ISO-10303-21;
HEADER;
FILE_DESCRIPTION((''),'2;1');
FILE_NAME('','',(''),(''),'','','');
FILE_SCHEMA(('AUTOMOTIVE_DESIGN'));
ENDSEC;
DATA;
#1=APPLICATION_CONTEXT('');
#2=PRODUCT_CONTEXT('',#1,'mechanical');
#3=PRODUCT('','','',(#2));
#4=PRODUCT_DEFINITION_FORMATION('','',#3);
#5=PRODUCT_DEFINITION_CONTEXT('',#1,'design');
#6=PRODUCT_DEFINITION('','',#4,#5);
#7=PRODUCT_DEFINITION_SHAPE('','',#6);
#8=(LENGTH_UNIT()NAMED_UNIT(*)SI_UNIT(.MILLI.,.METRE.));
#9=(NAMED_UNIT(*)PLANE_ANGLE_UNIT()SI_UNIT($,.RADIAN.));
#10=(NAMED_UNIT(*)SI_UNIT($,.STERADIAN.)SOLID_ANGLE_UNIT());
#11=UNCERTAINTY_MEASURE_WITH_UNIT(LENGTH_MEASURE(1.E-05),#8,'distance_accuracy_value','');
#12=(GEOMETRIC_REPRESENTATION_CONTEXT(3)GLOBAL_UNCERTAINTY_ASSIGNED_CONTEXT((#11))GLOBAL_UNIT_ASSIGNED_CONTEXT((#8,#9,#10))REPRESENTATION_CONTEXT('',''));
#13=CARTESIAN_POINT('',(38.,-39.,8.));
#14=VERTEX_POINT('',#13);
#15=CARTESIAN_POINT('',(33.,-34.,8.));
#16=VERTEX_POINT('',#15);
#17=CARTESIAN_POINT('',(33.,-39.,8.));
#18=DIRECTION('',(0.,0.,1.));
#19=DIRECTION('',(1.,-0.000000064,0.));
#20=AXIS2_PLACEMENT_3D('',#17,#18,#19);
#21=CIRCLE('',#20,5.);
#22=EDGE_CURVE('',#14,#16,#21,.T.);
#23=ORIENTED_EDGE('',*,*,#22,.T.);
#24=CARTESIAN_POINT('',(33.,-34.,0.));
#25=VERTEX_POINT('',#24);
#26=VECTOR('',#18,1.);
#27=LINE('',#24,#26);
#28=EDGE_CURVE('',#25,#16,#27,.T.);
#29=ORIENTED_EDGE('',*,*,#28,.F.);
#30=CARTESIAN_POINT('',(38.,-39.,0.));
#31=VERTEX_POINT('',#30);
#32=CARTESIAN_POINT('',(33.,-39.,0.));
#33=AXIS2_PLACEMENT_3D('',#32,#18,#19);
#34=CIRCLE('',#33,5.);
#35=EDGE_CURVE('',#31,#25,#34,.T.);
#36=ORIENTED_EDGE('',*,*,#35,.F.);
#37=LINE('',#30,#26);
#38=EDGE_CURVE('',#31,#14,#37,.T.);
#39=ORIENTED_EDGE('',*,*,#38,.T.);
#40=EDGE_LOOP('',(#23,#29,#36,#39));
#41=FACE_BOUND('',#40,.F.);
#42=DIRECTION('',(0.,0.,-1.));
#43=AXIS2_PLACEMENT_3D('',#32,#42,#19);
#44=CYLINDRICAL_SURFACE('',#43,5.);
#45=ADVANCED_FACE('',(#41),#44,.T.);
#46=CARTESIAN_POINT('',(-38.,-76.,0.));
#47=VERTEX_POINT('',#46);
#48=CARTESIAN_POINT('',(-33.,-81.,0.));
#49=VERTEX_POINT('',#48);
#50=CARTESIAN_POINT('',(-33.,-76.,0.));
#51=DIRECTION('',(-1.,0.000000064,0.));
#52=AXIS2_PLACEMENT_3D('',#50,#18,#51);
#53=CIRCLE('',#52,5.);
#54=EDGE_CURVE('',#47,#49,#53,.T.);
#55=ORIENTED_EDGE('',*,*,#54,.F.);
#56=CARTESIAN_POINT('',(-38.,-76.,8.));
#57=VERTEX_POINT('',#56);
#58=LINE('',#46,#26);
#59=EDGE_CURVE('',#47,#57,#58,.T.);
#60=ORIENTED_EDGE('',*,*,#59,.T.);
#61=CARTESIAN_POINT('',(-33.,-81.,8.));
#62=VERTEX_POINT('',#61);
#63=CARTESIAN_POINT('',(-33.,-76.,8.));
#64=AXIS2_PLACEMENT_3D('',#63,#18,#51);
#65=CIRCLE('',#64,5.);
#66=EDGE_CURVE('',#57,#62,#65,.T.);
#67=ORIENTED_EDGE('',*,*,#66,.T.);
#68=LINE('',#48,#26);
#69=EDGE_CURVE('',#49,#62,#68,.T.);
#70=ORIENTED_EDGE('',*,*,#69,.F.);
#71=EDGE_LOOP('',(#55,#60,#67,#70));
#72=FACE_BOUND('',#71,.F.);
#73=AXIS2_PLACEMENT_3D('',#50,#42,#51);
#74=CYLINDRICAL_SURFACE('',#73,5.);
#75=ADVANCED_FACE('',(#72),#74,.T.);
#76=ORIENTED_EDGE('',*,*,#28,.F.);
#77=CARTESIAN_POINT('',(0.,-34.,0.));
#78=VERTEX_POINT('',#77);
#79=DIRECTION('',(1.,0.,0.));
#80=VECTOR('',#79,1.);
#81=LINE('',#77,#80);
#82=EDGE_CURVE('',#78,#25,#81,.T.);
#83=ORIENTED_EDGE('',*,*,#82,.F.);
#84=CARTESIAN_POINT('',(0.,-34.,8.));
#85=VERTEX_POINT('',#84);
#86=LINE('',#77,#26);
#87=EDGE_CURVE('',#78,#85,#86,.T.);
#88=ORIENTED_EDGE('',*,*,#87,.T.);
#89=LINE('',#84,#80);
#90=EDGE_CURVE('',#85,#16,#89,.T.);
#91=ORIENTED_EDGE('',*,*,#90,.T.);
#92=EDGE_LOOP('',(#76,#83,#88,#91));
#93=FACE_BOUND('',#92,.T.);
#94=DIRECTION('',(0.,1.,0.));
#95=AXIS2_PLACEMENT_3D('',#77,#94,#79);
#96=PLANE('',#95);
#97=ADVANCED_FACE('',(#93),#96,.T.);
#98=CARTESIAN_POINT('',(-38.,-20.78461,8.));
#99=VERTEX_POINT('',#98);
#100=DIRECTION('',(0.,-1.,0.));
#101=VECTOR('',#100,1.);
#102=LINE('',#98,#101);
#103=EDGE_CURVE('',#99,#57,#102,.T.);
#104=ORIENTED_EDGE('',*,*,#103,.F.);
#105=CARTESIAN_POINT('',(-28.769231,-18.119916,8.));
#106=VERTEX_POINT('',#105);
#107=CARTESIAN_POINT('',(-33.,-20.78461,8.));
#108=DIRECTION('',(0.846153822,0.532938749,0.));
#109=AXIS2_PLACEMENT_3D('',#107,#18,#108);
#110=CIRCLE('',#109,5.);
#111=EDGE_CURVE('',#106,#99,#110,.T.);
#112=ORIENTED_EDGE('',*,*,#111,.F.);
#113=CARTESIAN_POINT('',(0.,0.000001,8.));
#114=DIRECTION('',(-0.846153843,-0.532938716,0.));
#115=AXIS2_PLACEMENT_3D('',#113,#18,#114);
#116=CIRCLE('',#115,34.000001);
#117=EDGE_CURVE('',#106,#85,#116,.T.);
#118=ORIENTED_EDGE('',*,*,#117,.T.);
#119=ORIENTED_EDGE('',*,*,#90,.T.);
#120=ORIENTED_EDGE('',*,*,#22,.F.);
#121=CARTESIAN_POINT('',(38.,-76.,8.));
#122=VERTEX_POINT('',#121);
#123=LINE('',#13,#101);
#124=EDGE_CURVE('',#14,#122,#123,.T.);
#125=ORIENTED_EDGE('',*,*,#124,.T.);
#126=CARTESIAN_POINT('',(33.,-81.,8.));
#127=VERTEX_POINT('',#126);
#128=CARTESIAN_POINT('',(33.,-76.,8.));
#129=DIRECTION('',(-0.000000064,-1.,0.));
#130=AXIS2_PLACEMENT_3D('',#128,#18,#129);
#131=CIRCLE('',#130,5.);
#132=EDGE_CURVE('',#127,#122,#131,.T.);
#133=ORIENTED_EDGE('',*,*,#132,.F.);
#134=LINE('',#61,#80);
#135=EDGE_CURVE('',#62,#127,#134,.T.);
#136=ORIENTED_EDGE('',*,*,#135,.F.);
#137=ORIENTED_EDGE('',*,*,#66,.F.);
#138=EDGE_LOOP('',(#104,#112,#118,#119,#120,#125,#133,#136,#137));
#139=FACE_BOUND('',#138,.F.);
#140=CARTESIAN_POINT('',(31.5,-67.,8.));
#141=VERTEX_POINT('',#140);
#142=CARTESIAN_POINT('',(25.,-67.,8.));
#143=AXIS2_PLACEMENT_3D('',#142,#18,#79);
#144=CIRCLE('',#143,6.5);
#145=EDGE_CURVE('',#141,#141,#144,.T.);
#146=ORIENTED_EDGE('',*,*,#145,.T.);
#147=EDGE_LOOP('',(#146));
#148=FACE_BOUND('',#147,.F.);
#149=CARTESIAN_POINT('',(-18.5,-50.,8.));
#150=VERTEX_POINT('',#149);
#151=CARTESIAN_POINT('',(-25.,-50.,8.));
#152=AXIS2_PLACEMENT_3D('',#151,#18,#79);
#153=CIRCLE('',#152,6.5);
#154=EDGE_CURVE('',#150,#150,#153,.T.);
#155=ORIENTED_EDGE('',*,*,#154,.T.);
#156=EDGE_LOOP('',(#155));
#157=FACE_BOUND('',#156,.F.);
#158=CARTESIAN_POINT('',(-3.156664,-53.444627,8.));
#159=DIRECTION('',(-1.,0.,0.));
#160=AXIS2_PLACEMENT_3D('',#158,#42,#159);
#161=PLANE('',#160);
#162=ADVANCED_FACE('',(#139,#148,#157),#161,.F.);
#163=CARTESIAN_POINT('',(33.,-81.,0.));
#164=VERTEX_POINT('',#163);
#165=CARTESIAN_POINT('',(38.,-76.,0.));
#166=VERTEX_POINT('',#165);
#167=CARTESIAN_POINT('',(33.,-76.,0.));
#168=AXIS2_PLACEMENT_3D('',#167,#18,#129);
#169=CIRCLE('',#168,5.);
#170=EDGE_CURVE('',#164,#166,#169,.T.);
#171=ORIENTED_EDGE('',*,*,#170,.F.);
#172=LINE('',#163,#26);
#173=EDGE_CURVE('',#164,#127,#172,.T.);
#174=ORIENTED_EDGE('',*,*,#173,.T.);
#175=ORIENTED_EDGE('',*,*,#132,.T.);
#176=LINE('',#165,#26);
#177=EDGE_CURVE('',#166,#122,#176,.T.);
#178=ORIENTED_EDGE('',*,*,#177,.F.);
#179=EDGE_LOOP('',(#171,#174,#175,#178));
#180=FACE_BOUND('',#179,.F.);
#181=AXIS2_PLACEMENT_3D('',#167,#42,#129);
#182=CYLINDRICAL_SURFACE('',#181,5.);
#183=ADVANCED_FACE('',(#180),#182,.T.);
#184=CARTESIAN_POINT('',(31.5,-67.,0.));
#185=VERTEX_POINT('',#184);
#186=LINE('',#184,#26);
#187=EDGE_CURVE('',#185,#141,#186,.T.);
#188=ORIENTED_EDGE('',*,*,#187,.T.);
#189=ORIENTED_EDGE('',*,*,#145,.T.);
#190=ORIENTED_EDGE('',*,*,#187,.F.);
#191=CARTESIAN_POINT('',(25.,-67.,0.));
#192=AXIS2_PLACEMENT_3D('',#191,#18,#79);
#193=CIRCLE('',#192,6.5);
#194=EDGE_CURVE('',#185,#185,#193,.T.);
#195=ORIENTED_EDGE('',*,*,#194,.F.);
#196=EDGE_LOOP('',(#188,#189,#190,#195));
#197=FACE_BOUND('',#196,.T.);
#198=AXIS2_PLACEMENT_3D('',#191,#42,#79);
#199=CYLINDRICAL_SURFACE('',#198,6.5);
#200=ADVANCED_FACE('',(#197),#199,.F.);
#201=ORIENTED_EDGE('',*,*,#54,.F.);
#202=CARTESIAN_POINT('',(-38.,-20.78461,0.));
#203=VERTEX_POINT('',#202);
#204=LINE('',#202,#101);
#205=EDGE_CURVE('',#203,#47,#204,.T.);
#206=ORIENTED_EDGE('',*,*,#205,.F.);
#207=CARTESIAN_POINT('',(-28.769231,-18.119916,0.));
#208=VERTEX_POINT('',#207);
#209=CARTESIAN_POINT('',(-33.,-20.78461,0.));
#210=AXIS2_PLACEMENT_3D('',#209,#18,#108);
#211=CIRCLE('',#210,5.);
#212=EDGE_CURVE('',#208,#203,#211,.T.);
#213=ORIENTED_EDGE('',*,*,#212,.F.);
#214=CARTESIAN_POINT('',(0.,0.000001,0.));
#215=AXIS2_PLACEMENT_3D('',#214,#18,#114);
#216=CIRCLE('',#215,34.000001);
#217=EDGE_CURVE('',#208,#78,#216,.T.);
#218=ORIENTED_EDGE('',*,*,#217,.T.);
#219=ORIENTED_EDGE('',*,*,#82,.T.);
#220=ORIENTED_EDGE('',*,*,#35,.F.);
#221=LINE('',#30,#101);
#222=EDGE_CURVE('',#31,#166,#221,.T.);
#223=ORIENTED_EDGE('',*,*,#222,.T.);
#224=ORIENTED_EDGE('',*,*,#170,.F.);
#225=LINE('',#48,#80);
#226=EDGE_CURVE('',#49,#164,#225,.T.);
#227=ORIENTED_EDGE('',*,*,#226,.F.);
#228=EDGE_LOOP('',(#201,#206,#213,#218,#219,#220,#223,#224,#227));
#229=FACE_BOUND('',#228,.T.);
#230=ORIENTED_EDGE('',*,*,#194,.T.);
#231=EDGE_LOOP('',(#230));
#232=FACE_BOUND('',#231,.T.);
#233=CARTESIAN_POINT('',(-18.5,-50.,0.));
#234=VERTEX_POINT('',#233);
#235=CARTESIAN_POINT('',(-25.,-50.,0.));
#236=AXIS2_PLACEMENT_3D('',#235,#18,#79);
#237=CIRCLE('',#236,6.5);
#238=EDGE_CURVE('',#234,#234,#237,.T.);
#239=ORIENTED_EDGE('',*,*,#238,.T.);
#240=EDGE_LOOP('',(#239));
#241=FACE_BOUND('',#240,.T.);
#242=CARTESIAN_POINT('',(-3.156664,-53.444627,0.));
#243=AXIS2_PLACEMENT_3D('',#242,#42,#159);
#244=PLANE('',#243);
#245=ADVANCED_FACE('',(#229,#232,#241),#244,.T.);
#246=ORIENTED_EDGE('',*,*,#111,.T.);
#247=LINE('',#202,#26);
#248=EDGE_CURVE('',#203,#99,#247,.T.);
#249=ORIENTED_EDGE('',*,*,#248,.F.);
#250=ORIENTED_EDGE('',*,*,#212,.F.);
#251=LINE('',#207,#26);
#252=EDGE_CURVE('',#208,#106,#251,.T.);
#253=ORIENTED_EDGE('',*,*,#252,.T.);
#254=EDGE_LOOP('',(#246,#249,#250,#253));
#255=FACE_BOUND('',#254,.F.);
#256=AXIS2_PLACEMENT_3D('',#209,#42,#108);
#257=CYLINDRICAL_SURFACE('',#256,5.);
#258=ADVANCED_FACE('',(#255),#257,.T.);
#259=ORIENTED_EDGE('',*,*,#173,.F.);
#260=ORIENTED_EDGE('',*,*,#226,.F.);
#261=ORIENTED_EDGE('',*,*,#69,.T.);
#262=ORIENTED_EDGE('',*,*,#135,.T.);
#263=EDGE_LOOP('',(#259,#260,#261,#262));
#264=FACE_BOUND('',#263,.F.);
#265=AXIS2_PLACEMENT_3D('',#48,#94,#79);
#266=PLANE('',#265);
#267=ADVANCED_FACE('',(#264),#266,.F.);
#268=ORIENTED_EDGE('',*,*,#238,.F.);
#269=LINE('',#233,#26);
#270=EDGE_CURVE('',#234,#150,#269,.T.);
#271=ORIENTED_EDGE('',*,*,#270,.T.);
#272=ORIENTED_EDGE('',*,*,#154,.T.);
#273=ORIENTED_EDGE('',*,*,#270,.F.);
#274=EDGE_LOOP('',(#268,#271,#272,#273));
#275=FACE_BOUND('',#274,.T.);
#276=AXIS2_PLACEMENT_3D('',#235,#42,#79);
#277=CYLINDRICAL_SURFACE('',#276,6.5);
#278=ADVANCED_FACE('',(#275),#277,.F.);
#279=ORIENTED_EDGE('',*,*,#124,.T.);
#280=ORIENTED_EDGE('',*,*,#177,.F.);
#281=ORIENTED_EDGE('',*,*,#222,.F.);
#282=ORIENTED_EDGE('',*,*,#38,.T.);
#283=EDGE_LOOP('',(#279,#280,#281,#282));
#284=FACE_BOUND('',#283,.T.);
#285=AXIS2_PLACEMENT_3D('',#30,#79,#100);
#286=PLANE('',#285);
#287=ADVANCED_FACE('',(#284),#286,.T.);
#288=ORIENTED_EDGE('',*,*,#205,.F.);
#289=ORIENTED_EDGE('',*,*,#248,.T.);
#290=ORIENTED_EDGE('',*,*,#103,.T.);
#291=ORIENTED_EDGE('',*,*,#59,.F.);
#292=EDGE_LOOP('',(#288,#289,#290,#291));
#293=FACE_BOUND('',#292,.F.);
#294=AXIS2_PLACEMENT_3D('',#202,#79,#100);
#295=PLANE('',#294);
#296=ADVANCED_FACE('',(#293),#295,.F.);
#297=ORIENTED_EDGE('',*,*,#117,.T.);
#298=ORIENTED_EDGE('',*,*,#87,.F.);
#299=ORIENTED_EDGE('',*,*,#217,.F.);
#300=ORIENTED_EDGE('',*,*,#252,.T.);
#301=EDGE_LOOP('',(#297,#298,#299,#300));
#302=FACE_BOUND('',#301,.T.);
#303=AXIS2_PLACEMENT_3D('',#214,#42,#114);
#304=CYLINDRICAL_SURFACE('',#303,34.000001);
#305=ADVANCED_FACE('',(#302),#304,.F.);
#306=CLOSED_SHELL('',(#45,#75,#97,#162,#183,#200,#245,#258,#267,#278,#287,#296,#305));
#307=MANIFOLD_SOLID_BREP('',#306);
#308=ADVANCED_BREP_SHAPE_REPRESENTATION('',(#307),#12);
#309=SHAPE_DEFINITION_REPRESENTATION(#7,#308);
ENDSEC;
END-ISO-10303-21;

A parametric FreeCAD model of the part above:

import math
import FreeCAD as App
import Part
import Sketcher

doc = App.newDocument("Part")
body = doc.addObject("PartDesign::Body", "Body")

# Sketch on XY plane
sketch1 = body.newObject("Sketcher::SketchObject", "Sketch")
sketch1.AttachmentSupport = (doc.getObject("XY_Plane"), [""])
sketch1.MapMode = "FlatFace"
sketch1.addGeometry(Part.ArcOfCircle(Part.Circle(App.Vector(0, 0, 0), App.Vector(0, 0, 1), 34), math.radians(-148), math.radians(-90)), False)
sketch1.addGeometry(Part.ArcOfCircle(Part.Circle(App.Vector(-33, -20.8, 0), App.Vector(0, 0, 1), 5), math.radians(32), math.radians(180)), False)
sketch1.addGeometry(Part.LineSegment(App.Vector(-38, -20.8, 0), App.Vector(-38, -76, 0)), False)
sketch1.addGeometry(Part.ArcOfCircle(Part.Circle(App.Vector(-33, -76, 0), App.Vector(0, 0, 1), 5), math.radians(180), math.radians(270)), False)
sketch1.addGeometry(Part.LineSegment(App.Vector(-33, -81, 0), App.Vector(33, -81, 0)), False)
sketch1.addGeometry(Part.ArcOfCircle(Part.Circle(App.Vector(33, -76, 0), App.Vector(0, 0, 1), 5), math.radians(-90), math.radians(0)), False)
sketch1.addGeometry(Part.LineSegment(App.Vector(38, -76, 0), App.Vector(38, -39, 0)), False)
sketch1.addGeometry(Part.ArcOfCircle(Part.Circle(App.Vector(33, -39, 0), App.Vector(0, 0, 1), 5), math.radians(0), math.radians(90)), False)
sketch1.addGeometry(Part.LineSegment(App.Vector(33, -34, 0), App.Vector(0, -34, 0)), False)
sketch1.addGeometry(Part.Circle(App.Vector(25, -67, 0), App.Vector(0, 0, 1), 6.5), False)
sketch1.addGeometry(Part.Circle(App.Vector(-25, -50, 0), App.Vector(0, 0, 1), 6.5), False)
sketch1.addConstraint(Sketcher.Constraint("Tangent", 0, 1, 1, 1))
sketch1.addConstraint(Sketcher.Constraint("Tangent", 1, 2, 2, 1))
sketch1.addConstraint(Sketcher.Constraint("Tangent", 2, 2, 3, 1))
sketch1.addConstraint(Sketcher.Constraint("Tangent", 3, 2, 4, 1))
sketch1.addConstraint(Sketcher.Constraint("Tangent", 4, 2, 5, 1))
sketch1.addConstraint(Sketcher.Constraint("Tangent", 5, 2, 6, 1))
sketch1.addConstraint(Sketcher.Constraint("Tangent", 6, 2, 7, 1))
sketch1.addConstraint(Sketcher.Constraint("Tangent", 7, 2, 8, 1))
sketch1.addConstraint(Sketcher.Constraint("Tangent", 8, 2, 0, 2))
sketch1.addConstraint(Sketcher.Constraint("Vertical", 2))
sketch1.addConstraint(Sketcher.Constraint("Horizontal", 4))
sketch1.addConstraint(Sketcher.Constraint("Vertical", 6))
sketch1.addConstraint(Sketcher.Constraint("Horizontal", 8))
sketch1.addConstraint(Sketcher.Constraint("Coincident", 0, 3, -1, 1))
sketch1.addConstraint(Sketcher.Constraint("Equal", 1, 3))
sketch1.addConstraint(Sketcher.Constraint("Equal", 3, 5))
sketch1.addConstraint(Sketcher.Constraint("Equal", 5, 7))
sketch1.addConstraint(Sketcher.Constraint("Equal", 9, 10))
sketch1.addConstraint(Sketcher.Constraint("Diameter", 9, 13.0))
sketch1.addConstraint(Sketcher.Constraint("Radius", 0, 34.000001))
sketch1.addConstraint(Sketcher.Constraint("Radius", 1, 5.0))
sketch1.addConstraint(Sketcher.Constraint("DistanceX", 4, 1, 4, 2, 66.0))
sketch1.addConstraint(Sketcher.Constraint("DistanceX", 8, 2, 8, 1, 33.0))
sketch1.addConstraint(Sketcher.Constraint("DistanceY", 6, 1, 6, 2, 37.0))
sketch1.addConstraint(Sketcher.Constraint("DistanceX", -1, 1, 9, 3, 25.0))
sketch1.addConstraint(Sketcher.Constraint("DistanceY", 9, 3, -1, 1, 67.0))
sketch1.addConstraint(Sketcher.Constraint("DistanceX", 10, 3, -1, 1, 25.0))
sketch1.addConstraint(Sketcher.Constraint("DistanceY", 10, 3, -1, 1, 50.0))
pad1 = body.newObject("PartDesign::Pad", "Pad")
pad1.Profile = sketch1
pad1.Length = 8

doc.recompute()
